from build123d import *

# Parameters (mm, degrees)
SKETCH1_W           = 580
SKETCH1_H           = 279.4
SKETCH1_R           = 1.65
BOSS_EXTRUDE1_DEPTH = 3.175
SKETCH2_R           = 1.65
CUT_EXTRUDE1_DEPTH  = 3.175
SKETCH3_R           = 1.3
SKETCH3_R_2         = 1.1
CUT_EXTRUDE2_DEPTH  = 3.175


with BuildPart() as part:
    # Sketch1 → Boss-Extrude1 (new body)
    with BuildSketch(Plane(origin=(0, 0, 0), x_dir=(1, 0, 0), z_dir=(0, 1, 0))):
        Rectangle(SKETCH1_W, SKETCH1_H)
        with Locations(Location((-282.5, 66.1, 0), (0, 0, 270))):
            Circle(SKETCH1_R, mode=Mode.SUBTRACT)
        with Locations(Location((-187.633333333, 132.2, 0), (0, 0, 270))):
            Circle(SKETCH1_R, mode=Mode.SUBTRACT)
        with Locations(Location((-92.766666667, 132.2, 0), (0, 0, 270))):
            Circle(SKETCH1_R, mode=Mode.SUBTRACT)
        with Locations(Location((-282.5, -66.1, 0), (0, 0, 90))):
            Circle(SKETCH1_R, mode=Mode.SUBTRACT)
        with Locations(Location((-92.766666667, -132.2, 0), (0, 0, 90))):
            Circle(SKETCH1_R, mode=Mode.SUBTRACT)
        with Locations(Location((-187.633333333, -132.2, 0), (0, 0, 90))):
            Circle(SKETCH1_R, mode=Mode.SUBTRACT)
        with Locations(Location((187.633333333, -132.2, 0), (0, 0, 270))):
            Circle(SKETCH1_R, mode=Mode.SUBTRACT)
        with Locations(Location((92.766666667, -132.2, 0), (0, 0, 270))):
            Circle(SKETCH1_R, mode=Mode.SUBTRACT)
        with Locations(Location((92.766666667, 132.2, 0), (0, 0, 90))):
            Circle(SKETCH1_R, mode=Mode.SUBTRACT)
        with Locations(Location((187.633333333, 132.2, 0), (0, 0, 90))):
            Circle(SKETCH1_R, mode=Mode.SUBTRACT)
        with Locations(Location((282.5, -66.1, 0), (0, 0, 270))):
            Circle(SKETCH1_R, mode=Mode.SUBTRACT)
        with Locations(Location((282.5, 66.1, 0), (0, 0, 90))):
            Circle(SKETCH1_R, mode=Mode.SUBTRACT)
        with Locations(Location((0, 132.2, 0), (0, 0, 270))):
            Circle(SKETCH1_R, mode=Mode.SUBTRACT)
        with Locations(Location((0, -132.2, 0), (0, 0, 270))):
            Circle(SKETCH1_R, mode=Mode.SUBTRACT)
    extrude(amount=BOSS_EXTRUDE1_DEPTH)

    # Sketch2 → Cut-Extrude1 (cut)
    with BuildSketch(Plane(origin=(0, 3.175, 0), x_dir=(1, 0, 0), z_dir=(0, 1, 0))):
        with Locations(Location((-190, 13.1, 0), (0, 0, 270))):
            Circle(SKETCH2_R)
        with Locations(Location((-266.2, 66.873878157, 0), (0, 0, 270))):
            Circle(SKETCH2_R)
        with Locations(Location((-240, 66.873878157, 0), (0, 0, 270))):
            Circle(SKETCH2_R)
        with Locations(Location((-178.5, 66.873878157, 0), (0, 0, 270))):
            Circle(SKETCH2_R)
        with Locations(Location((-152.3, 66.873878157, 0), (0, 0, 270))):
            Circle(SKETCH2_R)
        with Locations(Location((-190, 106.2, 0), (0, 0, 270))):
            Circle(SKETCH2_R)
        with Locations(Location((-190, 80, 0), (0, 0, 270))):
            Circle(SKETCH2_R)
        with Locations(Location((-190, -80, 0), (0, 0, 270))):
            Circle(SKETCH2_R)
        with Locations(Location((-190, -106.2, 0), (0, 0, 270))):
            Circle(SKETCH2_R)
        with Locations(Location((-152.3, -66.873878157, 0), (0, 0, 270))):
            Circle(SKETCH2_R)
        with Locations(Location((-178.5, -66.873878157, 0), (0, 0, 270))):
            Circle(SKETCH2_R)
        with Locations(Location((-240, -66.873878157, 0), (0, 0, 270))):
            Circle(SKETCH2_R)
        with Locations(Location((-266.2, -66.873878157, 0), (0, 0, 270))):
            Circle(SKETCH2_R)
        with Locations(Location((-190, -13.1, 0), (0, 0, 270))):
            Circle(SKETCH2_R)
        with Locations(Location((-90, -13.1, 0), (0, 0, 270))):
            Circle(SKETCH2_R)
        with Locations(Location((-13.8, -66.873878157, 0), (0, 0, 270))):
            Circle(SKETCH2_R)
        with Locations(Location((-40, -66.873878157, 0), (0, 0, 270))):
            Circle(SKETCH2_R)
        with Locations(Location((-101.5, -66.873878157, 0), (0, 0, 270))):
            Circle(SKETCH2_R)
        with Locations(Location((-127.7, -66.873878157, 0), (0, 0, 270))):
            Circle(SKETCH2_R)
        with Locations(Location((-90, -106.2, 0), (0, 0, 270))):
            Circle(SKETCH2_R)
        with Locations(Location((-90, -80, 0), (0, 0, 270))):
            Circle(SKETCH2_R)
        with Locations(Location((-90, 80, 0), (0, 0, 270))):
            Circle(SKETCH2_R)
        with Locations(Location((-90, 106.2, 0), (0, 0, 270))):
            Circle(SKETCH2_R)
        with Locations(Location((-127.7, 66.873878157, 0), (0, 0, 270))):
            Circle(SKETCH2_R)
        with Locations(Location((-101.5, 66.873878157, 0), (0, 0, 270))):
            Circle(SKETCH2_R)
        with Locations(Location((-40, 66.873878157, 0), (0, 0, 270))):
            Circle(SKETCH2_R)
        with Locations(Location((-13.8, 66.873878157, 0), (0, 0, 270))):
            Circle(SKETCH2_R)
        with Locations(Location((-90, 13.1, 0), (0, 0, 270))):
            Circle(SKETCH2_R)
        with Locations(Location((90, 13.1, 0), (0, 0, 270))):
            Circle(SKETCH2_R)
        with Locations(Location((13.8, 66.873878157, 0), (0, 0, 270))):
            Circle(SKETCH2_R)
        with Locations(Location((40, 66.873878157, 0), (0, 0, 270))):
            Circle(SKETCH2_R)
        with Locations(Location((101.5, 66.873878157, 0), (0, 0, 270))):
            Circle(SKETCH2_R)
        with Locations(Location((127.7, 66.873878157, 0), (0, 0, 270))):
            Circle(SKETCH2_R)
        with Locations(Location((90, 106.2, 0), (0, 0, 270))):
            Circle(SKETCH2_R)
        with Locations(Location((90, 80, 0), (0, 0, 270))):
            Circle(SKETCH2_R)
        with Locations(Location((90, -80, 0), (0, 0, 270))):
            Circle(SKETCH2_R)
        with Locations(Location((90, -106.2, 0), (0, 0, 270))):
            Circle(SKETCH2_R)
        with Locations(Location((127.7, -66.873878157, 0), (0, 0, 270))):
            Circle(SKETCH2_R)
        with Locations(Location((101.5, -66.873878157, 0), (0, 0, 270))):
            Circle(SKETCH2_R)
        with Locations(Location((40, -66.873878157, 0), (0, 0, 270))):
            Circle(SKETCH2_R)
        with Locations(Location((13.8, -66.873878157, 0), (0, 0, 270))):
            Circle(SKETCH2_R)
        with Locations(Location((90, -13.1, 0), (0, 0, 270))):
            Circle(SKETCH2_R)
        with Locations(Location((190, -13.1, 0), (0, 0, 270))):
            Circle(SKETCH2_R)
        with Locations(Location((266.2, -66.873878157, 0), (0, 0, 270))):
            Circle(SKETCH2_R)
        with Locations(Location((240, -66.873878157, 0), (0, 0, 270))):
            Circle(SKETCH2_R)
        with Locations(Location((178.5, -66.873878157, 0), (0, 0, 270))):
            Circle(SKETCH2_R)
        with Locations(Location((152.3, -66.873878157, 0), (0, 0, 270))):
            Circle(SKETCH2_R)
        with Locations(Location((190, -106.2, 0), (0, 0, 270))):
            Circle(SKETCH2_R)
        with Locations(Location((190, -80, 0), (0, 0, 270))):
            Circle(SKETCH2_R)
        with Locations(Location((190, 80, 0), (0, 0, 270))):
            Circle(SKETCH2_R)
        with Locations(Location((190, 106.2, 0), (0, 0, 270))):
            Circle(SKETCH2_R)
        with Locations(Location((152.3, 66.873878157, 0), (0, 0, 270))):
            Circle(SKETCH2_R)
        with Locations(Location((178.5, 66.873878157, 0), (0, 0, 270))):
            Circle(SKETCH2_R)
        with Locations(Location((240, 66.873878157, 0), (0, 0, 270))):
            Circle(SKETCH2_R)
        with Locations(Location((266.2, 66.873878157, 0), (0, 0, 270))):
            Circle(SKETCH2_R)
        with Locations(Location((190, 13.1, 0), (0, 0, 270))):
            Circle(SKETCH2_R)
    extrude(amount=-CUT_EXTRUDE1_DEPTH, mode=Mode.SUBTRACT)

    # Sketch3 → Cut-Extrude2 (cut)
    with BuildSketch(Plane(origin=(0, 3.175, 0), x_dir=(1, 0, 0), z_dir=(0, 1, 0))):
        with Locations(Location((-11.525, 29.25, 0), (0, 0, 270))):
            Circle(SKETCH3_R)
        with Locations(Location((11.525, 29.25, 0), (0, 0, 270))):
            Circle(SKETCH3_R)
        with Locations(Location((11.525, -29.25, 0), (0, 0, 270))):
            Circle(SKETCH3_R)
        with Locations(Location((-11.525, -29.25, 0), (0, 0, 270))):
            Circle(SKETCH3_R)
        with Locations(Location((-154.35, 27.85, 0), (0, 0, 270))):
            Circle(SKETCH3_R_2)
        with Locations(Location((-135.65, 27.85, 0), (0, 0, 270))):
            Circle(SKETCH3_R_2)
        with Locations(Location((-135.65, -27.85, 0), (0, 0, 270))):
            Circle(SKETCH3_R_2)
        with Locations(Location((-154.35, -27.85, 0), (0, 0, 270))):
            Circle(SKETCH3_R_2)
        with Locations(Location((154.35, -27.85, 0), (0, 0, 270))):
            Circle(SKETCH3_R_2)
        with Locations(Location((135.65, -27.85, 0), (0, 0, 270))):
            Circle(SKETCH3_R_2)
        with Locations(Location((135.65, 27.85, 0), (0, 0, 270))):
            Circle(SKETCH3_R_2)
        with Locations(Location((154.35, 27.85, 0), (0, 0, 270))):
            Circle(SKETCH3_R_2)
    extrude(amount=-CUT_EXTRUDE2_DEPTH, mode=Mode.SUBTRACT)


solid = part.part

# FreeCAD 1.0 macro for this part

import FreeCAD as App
import Part
import Sketcher
from FreeCAD import Vector
Q = App.Units.Quantity

doc = App.newDocument("Part")
body = doc.addObject("PartDesign::Body", "Body")

# Sketch on XZ plane
sketch1 = doc.addObject("Sketcher::SketchObject", "Sketch")
body.addObject(sketch1)
sketch1.AttachmentSupport = (doc.XZ_Plane, [""])
sketch1.MapMode = "FlatFace"
sketch1.addGeometry([
    Part.LineSegment(Vector(-290, -139.7, 0), Vector(-290, 139.7, 0)),  # 0
    Part.LineSegment(Vector(-290, 139.7, 0), Vector(290, 139.7, 0)),  # 1
    Part.LineSegment(Vector(290, 139.7, 0), Vector(290, -139.7, 0)),  # 2
    Part.LineSegment(Vector(290, -139.7, 0), Vector(-290, -139.7, 0)),  # 3
    Part.Circle(Vector(-187.633333, 132.2, 0), Vector(0, 0, 1), 1.65),  # 4
    Part.Circle(Vector(-92.766667, 132.2, 0), Vector(0, 0, 1), 1.65),  # 5
    Part.Circle(Vector(-282.5, 66.1, 0), Vector(0, 0, 1), 1.65),  # 6
    Part.Circle(Vector(0, 132.2, 0), Vector(0, 0, 1), 1.65),  # 7
    Part.Circle(Vector(92.766667, 132.2, 0), Vector(0, 0, 1), 1.65),  # 8
    Part.Circle(Vector(187.633333, 132.2, 0), Vector(0, 0, 1), 1.65),  # 9
    Part.Circle(Vector(282.5, 66.1, 0), Vector(0, 0, 1), 1.65),  # 10
    Part.Circle(Vector(-282.5, -66.1, 0), Vector(0, 0, 1), 1.65),  # 11
    Part.Circle(Vector(-187.633333, -132.2, 0), Vector(0, 0, 1), 1.65),  # 12
    Part.Circle(Vector(-92.766667, -132.2, 0), Vector(0, 0, 1), 1.65),  # 13
    Part.Circle(Vector(282.5, -66.1, 0), Vector(0, 0, 1), 1.65),  # 14
    Part.Circle(Vector(0, -132.2, 0), Vector(0, 0, 1), 1.65),  # 15
    Part.Circle(Vector(92.766667, -132.2, 0), Vector(0, 0, 1), 1.65),  # 16
    Part.Circle(Vector(187.633333, -132.2, 0), Vector(0, 0, 1), 1.65),  # 17
], False)
sketch1.addConstraint([
    Sketcher.Constraint("Coincident", 0, 2, 1, 1),
    Sketcher.Constraint("Coincident", 1, 2, 2, 1),
    Sketcher.Constraint("Coincident", 2, 2, 3, 1),
    Sketcher.Constraint("Coincident", 3, 2, 0, 1),
    Sketcher.Constraint("Vertical", 0),
    Sketcher.Constraint("Horizontal", 1),
    Sketcher.Constraint("Vertical", 2),
    Sketcher.Constraint("Horizontal", 3),
    Sketcher.Constraint("Equal", 4, 5),
    Sketcher.Constraint("Equal", 5, 6),
    Sketcher.Constraint("Equal", 6, 7),
    Sketcher.Constraint("Equal", 7, 8),
    Sketcher.Constraint("Equal", 8, 9),
    Sketcher.Constraint("Equal", 9, 10),
    Sketcher.Constraint("Equal", 10, 11),
    Sketcher.Constraint("Equal", 11, 12),
    Sketcher.Constraint("Equal", 12, 13),
    Sketcher.Constraint("Equal", 13, 14),
    Sketcher.Constraint("Equal", 14, 15),
    Sketcher.Constraint("Equal", 15, 16),
    Sketcher.Constraint("Equal", 16, 17),
    Sketcher.Constraint("Symmetric", 10, 3, 11, 3, -1, 1),
    Sketcher.Constraint("Symmetric", 9, 3, 12, 3, -1, 1),
    Sketcher.Constraint("Symmetric", 8, 3, 13, 3, -1, 1),
    Sketcher.Constraint("Symmetric", 6, 3, 14, 3, -1, 1),
    Sketcher.Constraint("Symmetric", 7, 3, 15, 3, -1, 1),
    Sketcher.Constraint("Symmetric", 5, 3, 16, 3, -1, 1),
    Sketcher.Constraint("Symmetric", 4, 3, 17, 3, -1, 1),
    Sketcher.Constraint("Symmetric", 0, 2, 2, 2, -1, 1),
    Sketcher.Constraint("Symmetric", 5, 3, 8, 3, -2),
    Sketcher.Constraint("Symmetric", 4, 3, 9, 3, -2),
    Sketcher.Constraint("Symmetric", 6, 3, 10, 3, -2),
    Sketcher.Constraint("PointOnObject", 7, 3, -2),
    Sketcher.Constraint("Horizontal", 4, 3, 5, 3),
    Sketcher.Constraint("Horizontal", 5, 3, 7, 3),
    Sketcher.Constraint("Diameter", 4, Q("3.3 mm")),
    Sketcher.Constraint("DistanceX", 1, 1, 1, 2, Q("580 mm")),
    Sketcher.Constraint("DistanceY", 0, 1, 0, 2, Q("279.4 mm")),
    Sketcher.Constraint("DistanceY", -1, 1, 4, 3, Q("132.2 mm")),
    Sketcher.Constraint("DistanceX", 6, 3, -1, 1, Q("282.5 mm")),
    Sketcher.Constraint("DistanceY", -1, 1, 6, 3, Q("66.1 mm")),
    Sketcher.Constraint("DistanceX", 4, 3, 8, 3, Q("280.4 mm")),
    Sketcher.Constraint("DistanceX", 4, 3, -1, 1, Q("187.633333 mm")),
])
pad1 = doc.addObject("PartDesign::Pad", "Pad")
body.addObject(pad1)
pad1.Profile = sketch1
pad1.Length = 3.175
pad1.Reversed = True

# Sketch on XZ plane
sketch2 = doc.addObject("Sketcher::SketchObject", "Sketch001")
body.addObject(sketch2)
sketch2.AttachmentSupport = (doc.XZ_Plane, [""])
sketch2.MapMode = "FlatFace"
sketch2.AttachmentOffset = App.Placement(Vector(0, 0, -3.175), App.Rotation())
sketch2.addGeometry([
    Part.Circle(Vector(-190, -13.1, 0), Vector(0, 0, 1), 1.65),  # 0
    Part.Circle(Vector(-266.2, -66.873878, 0), Vector(0, 0, 1), 1.65),  # 1
    Part.Circle(Vector(-240, -66.873878, 0), Vector(0, 0, 1), 1.65),  # 2
    Part.Circle(Vector(-178.5, -66.873878, 0), Vector(0, 0, 1), 1.65),  # 3
    Part.Circle(Vector(-152.3, -66.873878, 0), Vector(0, 0, 1), 1.65),  # 4
    Part.Circle(Vector(-190, -106.2, 0), Vector(0, 0, 1), 1.65),  # 5
    Part.Circle(Vector(-190, -80, 0), Vector(0, 0, 1), 1.65),  # 6
    Part.Circle(Vector(-190, 80, 0), Vector(0, 0, 1), 1.65),  # 7
    Part.Circle(Vector(-190, 106.2, 0), Vector(0, 0, 1), 1.65),  # 8
    Part.Circle(Vector(-152.3, 66.873878, 0), Vector(0, 0, 1), 1.65),  # 9
    Part.Circle(Vector(-178.5, 66.873878, 0), Vector(0, 0, 1), 1.65),  # 10
    Part.Circle(Vector(-240, 66.873878, 0), Vector(0, 0, 1), 1.65),  # 11
    Part.Circle(Vector(-266.2, 66.873878, 0), Vector(0, 0, 1), 1.65),  # 12
    Part.Circle(Vector(-190, 13.1, 0), Vector(0, 0, 1), 1.65),  # 13
    Part.Circle(Vector(-90, 13.1, 0), Vector(0, 0, 1), 1.65),  # 14
    Part.Circle(Vector(-13.8, 66.873878, 0), Vector(0, 0, 1), 1.65),  # 15
    Part.Circle(Vector(-40, 66.873878, 0), Vector(0, 0, 1), 1.65),  # 16
    Part.Circle(Vector(-101.5, 66.873878, 0), Vector(0, 0, 1), 1.65),  # 17
    Part.Circle(Vector(-127.7, 66.873878, 0), Vector(0, 0, 1), 1.65),  # 18
    Part.Circle(Vector(-90, 106.2, 0), Vector(0, 0, 1), 1.65),  # 19
    Part.Circle(Vector(-90, 80, 0), Vector(0, 0, 1), 1.65),  # 20
    Part.Circle(Vector(-90, -80, 0), Vector(0, 0, 1), 1.65),  # 21
    Part.Circle(Vector(-90, -106.2, 0), Vector(0, 0, 1), 1.65),  # 22
    Part.Circle(Vector(-127.7, -66.873878, 0), Vector(0, 0, 1), 1.65),  # 23
    Part.Circle(Vector(-101.5, -66.873878, 0), Vector(0, 0, 1), 1.65),  # 24
    Part.Circle(Vector(-40, -66.873878, 0), Vector(0, 0, 1), 1.65),  # 25
    Part.Circle(Vector(-13.8, -66.873878, 0), Vector(0, 0, 1), 1.65),  # 26
    Part.Circle(Vector(-90, -13.1, 0), Vector(0, 0, 1), 1.65),  # 27
    Part.Circle(Vector(90, -13.1, 0), Vector(0, 0, 1), 1.65),  # 28
    Part.Circle(Vector(13.8, -66.873878, 0), Vector(0, 0, 1), 1.65),  # 29
    Part.Circle(Vector(40, -66.873878, 0), Vector(0, 0, 1), 1.65),  # 30
    Part.Circle(Vector(101.5, -66.873878, 0), Vector(0, 0, 1), 1.65),  # 31
    Part.Circle(Vector(127.7, -66.873878, 0), Vector(0, 0, 1), 1.65),  # 32
    Part.Circle(Vector(90, -106.2, 0), Vector(0, 0, 1), 1.65),  # 33
    Part.Circle(Vector(90, -80, 0), Vector(0, 0, 1), 1.65),  # 34
    Part.Circle(Vector(90, 80, 0), Vector(0, 0, 1), 1.65),  # 35
    Part.Circle(Vector(90, 106.2, 0), Vector(0, 0, 1), 1.65),  # 36
    Part.Circle(Vector(127.7, 66.873878, 0), Vector(0, 0, 1), 1.65),  # 37
    Part.Circle(Vector(101.5, 66.873878, 0), Vector(0, 0, 1), 1.65),  # 38
    Part.Circle(Vector(40, 66.873878, 0), Vector(0, 0, 1), 1.65),  # 39
    Part.Circle(Vector(13.8, 66.873878, 0), Vector(0, 0, 1), 1.65),  # 40
    Part.Circle(Vector(90, 13.1, 0), Vector(0, 0, 1), 1.65),  # 41
    Part.Circle(Vector(190, 13.1, 0), Vector(0, 0, 1), 1.65),  # 42
    Part.Circle(Vector(266.2, 66.873878, 0), Vector(0, 0, 1), 1.65),  # 43
    Part.Circle(Vector(240, 66.873878, 0), Vector(0, 0, 1), 1.65),  # 44
    Part.Circle(Vector(178.5, 66.873878, 0), Vector(0, 0, 1), 1.65),  # 45
    Part.Circle(Vector(152.3, 66.873878, 0), Vector(0, 0, 1), 1.65),  # 46
    Part.Circle(Vector(190, 106.2, 0), Vector(0, 0, 1), 1.65),  # 47
    Part.Circle(Vector(190, 80, 0), Vector(0, 0, 1), 1.65),  # 48
    Part.Circle(Vector(190, -80, 0), Vector(0, 0, 1), 1.65),  # 49
    Part.Circle(Vector(190, -106.2, 0), Vector(0, 0, 1), 1.65),  # 50
    Part.Circle(Vector(152.3, -66.873878, 0), Vector(0, 0, 1), 1.65),  # 51
    Part.Circle(Vector(178.5, -66.873878, 0), Vector(0, 0, 1), 1.65),  # 52
    Part.Circle(Vector(240, -66.873878, 0), Vector(0, 0, 1), 1.65),  # 53
    Part.Circle(Vector(266.2, -66.873878, 0), Vector(0, 0, 1), 1.65),  # 54
    Part.Circle(Vector(190, -13.1, 0), Vector(0, 0, 1), 1.65),  # 55
], False)
sketch2.addConstraint([
    Sketcher.Constraint("Equal", 0, 1),
    Sketcher.Constraint("Equal", 1, 2),
    Sketcher.Constraint("Equal", 2, 3),
    Sketcher.Constraint("Equal", 3, 4),
    Sketcher.Constraint("Equal", 4, 5),
    Sketcher.Constraint("Equal", 5, 6),
    Sketcher.Constraint("Equal", 6, 7),
    Sketcher.Constraint("Equal", 7, 8),
    Sketcher.Constraint("Equal", 8, 9),
    Sketcher.Constraint("Equal", 9, 10),
    Sketcher.Constraint("Equal", 10, 11),
    Sketcher.Constraint("Equal", 11, 12),
    Sketcher.Constraint("Equal", 12, 13),
    Sketcher.Constraint("Equal", 13, 14),
    Sketcher.Constraint("Equal", 14, 15),
    Sketcher.Constraint("Equal", 15, 16),
    Sketcher.Constraint("Equal", 16, 17),
    Sketcher.Constraint("Equal", 17, 18),
    Sketcher.Constraint("Equal", 18, 19),
    Sketcher.Constraint("Equal", 19, 20),
    Sketcher.Constraint("Equal", 20, 21),
    Sketcher.Constraint("Equal", 21, 22),
    Sketcher.Constraint("Equal", 22, 23),
    Sketcher.Constraint("Equal", 23, 24),
    Sketcher.Constraint("Equal", 24, 25),
    Sketcher.Constraint("Equal", 25, 26),
    Sketcher.Constraint("Equal", 26, 27),
    Sketcher.Constraint("Equal", 27, 28),
    Sketcher.Constraint("Equal", 28, 29),
    Sketcher.Constraint("Equal", 29, 30),
    Sketcher.Constraint("Equal", 30, 31),
    Sketcher.Constraint("Equal", 31, 32),
    Sketcher.Constraint("Equal", 32, 33),
    Sketcher.Constraint("Equal", 33, 34),
    Sketcher.Constraint("Equal", 34, 35),
    Sketcher.Constraint("Equal", 35, 36),
    Sketcher.Constraint("Equal", 36, 37),
    Sketcher.Constraint("Equal", 37, 38),
    Sketcher.Constraint("Equal", 38, 39),
    Sketcher.Constraint("Equal", 39, 40),
    Sketcher.Constraint("Equal", 40, 41),
    Sketcher.Constraint("Equal", 41, 42),
    Sketcher.Constraint("Equal", 42, 43),
    Sketcher.Constraint("Equal", 43, 44),
    Sketcher.Constraint("Equal", 44, 45),
    Sketcher.Constraint("Equal", 45, 46),
    Sketcher.Constraint("Equal", 46, 47),
    Sketcher.Constraint("Equal", 47, 48),
    Sketcher.Constraint("Equal", 48, 49),
    Sketcher.Constraint("Equal", 49, 50),
    Sketcher.Constraint("Equal", 50, 51),
    Sketcher.Constraint("Equal", 51, 52),
    Sketcher.Constraint("Equal", 52, 53),
    Sketcher.Constraint("Equal", 53, 54),
    Sketcher.Constraint("Equal", 54, 55),
    Sketcher.Constraint("Symmetric", 14, 3, 28, 3, -1, 1),
    Sketcher.Constraint("Symmetric", 15, 3, 29, 3, -1, 1),
    Sketcher.Constraint("Symmetric", 16, 3, 30, 3, -1, 1),
    Sketcher.Constraint("Symmetric", 17, 3, 31, 3, -1, 1),
    Sketcher.Constraint("Symmetric", 18, 3, 32, 3, -1, 1),
    Sketcher.Constraint("Symmetric", 19, 3, 33, 3, -1, 1),
    Sketcher.Constraint("Symmetric", 20, 3, 34, 3, -1, 1),
    Sketcher.Constraint("Symmetric", 21, 3, 35, 3, -1, 1),
    Sketcher.Constraint("Symmetric", 22, 3, 36, 3, -1, 1),
    Sketcher.Constraint("Symmetric", 23, 3, 37, 3, -1, 1),
    Sketcher.Constraint("Symmetric", 24, 3, 38, 3, -1, 1),
    Sketcher.Constraint("Symmetric", 25, 3, 39, 3, -1, 1),
    Sketcher.Constraint("Symmetric", 26, 3, 40, 3, -1, 1),
    Sketcher.Constraint("Symmetric", 27, 3, 41, 3, -1, 1),
    Sketcher.Constraint("Symmetric", 0, 3, 42, 3, -1, 1),
    Sketcher.Constraint("Symmetric", 1, 3, 43, 3, -1, 1),
    Sketcher.Constraint("Symmetric", 2, 3, 44, 3, -1, 1),
    Sketcher.Constraint("Symmetric", 3, 3, 45, 3, -1, 1),
    Sketcher.Constraint("Symmetric", 4, 3, 46, 3, -1, 1),
    Sketcher.Constraint("Symmetric", 5, 3, 47, 3, -1, 1),
    Sketcher.Constraint("Symmetric", 6, 3, 48, 3, -1, 1),
    Sketcher.Constraint("Symmetric", 7, 3, 49, 3, -1, 1),
    Sketcher.Constraint("Symmetric", 8, 3, 50, 3, -1, 1),
    Sketcher.Constraint("Symmetric", 9, 3, 51, 3, -1, 1),
    Sketcher.Constraint("Symmetric", 10, 3, 52, 3, -1, 1),
    Sketcher.Constraint("Symmetric", 11, 3, 53, 3, -1, 1),
    Sketcher.Constraint("Symmetric", 12, 3, 54, 3, -1, 1),
    Sketcher.Constraint("Symmetric", 13, 3, 55, 3, -1, 1),
    Sketcher.Constraint("Symmetric", 27, 3, 28, 3, -2),
    Sketcher.Constraint("Symmetric", 26, 3, 29, 3, -2),
    Sketcher.Constraint("Symmetric", 25, 3, 30, 3, -2),
    Sketcher.Constraint("Symmetric", 24, 3, 31, 3, -2),
    Sketcher.Constraint("Symmetric", 23, 3, 32, 3, -2),
    Sketcher.Constraint("Symmetric", 22, 3, 33, 3, -2),
    Sketcher.Constraint("Symmetric", 21, 3, 34, 3, -2),
    Sketcher.Constraint("Symmetric", 13, 3, 42, 3, -2),
    Sketcher.Constraint("Symmetric", 12, 3, 43, 3, -2),
    Sketcher.Constraint("Symmetric", 11, 3, 44, 3, -2),
    Sketcher.Constraint("Symmetric", 10, 3, 45, 3, -2),
    Sketcher.Constraint("Symmetric", 9, 3, 46, 3, -2),
    Sketcher.Constraint("Symmetric", 8, 3, 47, 3, -2),
    Sketcher.Constraint("Symmetric", 7, 3, 48, 3, -2),
    Sketcher.Constraint("Horizontal", 1, 3, 2, 3),
    Sketcher.Constraint("Horizontal", 2, 3, 3, 3),
    Sketcher.Constraint("Horizontal", 3, 3, 4, 3),
    Sketcher.Constraint("Horizontal", 13, 3, 14, 3),
    Sketcher.Constraint("Horizontal", 12, 3, 15, 3),
    Sketcher.Constraint("Horizontal", 15, 3, 16, 3),
    Sketcher.Constraint("Horizontal", 16, 3, 17, 3),
    Sketcher.Constraint("Horizontal", 17, 3, 18, 3),
    Sketcher.Constraint("Horizontal", 8, 3, 19, 3),
    Sketcher.Constraint("Horizontal", 7, 3, 20, 3),
    Sketcher.Constraint("Vertical", 0, 3, 5, 3),
    Sketcher.Constraint("Vertical", 5, 3, 6, 3),
    Sketcher.Constraint("Vertical", 14, 3, 19, 3),
    Sketcher.Constraint("Vertical", 19, 3, 20, 3),
    Sketcher.Constraint("Diameter", 0, Q("3.3 mm")),
    Sketcher.Constraint("DistanceX", 0, 3, -1, 1, Q("190 mm")),
    Sketcher.Constraint("DistanceX", 2, 3, -1, 1, Q("240 mm")),
    Sketcher.Constraint("DistanceY", 6, 3, -1, 1, Q("80 mm")),
    Sketcher.Constraint("DistanceX", 14, 3, -1, 1, Q("90 mm")),
    Sketcher.Constraint("DistanceX", 16, 3, -1, 1, Q("40 mm")),
    Sketcher.Constraint("DistanceX", 10, 3, 17, 3, Q("77 mm")),
    Sketcher.Constraint("DistanceY", 0, 3, -1, 1, Q("13.1 mm")),
    Sketcher.Constraint("DistanceX", 1, 3, -1, 1, Q("266.2 mm")),
    Sketcher.Constraint("DistanceX", 3, 3, -1, 1, Q("178.5 mm")),
    Sketcher.Constraint("DistanceX", 4, 3, -1, 1, Q("152.3 mm")),
    Sketcher.Constraint("DistanceY", 5, 3, -1, 1, Q("106.2 mm")),
    Sketcher.Constraint("DistanceX", 15, 3, -1, 1, Q("13.8 mm")),
    Sketcher.Constraint("DistanceX", 18, 3, -1, 1, Q("127.7 mm")),
    Sketcher.Constraint("DistanceY", 1, 3, -1, 1, Q("66.873878 mm")),
])
pocket1 = doc.addObject("PartDesign::Pocket", "Pocket")
body.addObject(pocket1)
pocket1.Profile = sketch2
pocket1.Length = 3.175
pocket1.Reversed = True

# Sketch on XZ plane
sketch3 = doc.addObject("Sketcher::SketchObject", "Sketch002")
body.addObject(sketch3)
sketch3.AttachmentSupport = (doc.XZ_Plane, [""])
sketch3.MapMode = "FlatFace"
sketch3.AttachmentOffset = App.Placement(Vector(0, 0, -3.175), App.Rotation())
sketch3.addGeometry([
    Part.Circle(Vector(-11.525, -29.25, 0), Vector(0, 0, 1), 1.3),  # 0
    Part.Circle(Vector(11.525, -29.25, 0), Vector(0, 0, 1), 1.3),  # 1
    Part.Circle(Vector(11.525, 29.25, 0), Vector(0, 0, 1), 1.3),  # 2
    Part.Circle(Vector(-11.525, 29.25, 0), Vector(0, 0, 1), 1.3),  # 3
    Part.Circle(Vector(-154.35, -27.85, 0), Vector(0, 0, 1), 1.1),  # 4
    Part.Circle(Vector(-135.65, -27.85, 0), Vector(0, 0, 1), 1.1),  # 5
    Part.Circle(Vector(-135.65, 27.85, 0), Vector(0, 0, 1), 1.1),  # 6
    Part.Circle(Vector(-154.35, 27.85, 0), Vector(0, 0, 1), 1.1),  # 7
    Part.Circle(Vector(154.35, 27.85, 0), Vector(0, 0, 1), 1.1),  # 8
    Part.Circle(Vector(135.65, 27.85, 0), Vector(0, 0, 1), 1.1),  # 9
    Part.Circle(Vector(135.65, -27.85, 0), Vector(0, 0, 1), 1.1),  # 10
    Part.Circle(Vector(154.35, -27.85, 0), Vector(0, 0, 1), 1.1),  # 11
], False)
sketch3.addConstraint([
    Sketcher.Constraint("Equal", 0, 1),
    Sketcher.Constraint("Equal", 1, 2),
    Sketcher.Constraint("Equal", 2, 3),
    Sketcher.Constraint("Equal", 4, 5),
    Sketcher.Constraint("Equal", 5, 6),
    Sketcher.Constraint("Equal", 6, 7),
    Sketcher.Constraint("Equal", 7, 8),
    Sketcher.Constraint("Equal", 8, 9),
    Sketcher.Constraint("Equal", 9, 10),
    Sketcher.Constraint("Equal", 10, 11),
    Sketcher.Constraint("Symmetric", 0, 3, 2, 3, -1, 1),
    Sketcher.Constraint("Symmetric", 1, 3, 3, 3, -1, 1),
    Sketcher.Constraint("Symmetric", 4, 3, 8, 3, -1, 1),
    Sketcher.Constraint("Symmetric", 5, 3, 9, 3, -1, 1),
    Sketcher.Constraint("Symmetric", 6, 3, 10, 3, -1, 1),
    Sketcher.Constraint("Symmetric", 7, 3, 11, 3, -1, 1),
    Sketcher.Constraint("Symmetric", 0, 3, 1, 3, -2),
    Sketcher.Constraint("Symmetric", 7, 3, 8, 3, -2),
    Sketcher.Constraint("Symmetric", 6, 3, 9, 3, -2),
    Sketcher.Constraint("Horizontal", 4, 3, 5, 3),
    Sketcher.Constraint("Diameter", 0, Q("2.6 mm")),
    Sketcher.Constraint("Diameter", 4, Q("2.2 mm")),
    Sketcher.Constraint("DistanceX", 6, 3, 8, 3, Q("290 mm")),
    Sketcher.Constraint("DistanceY", 1, 3, 2, 3, Q("58.5 mm")),
    Sketcher.Constraint("DistanceY", 0, 3, 4, 3, Q("1.4 mm")),
    Sketcher.Constraint("DistanceX", 4, 3, 5, 3, Q("18.7 mm")),
    Sketcher.Constraint("DistanceX", 0, 3, 1, 3, Q("23.05 mm")),
])
pocket2 = doc.addObject("PartDesign::Pocket", "Pocket001")
body.addObject(pocket2)
pocket2.Profile = sketch3
pocket2.Length = 3.175
pocket2.Reversed = True

doc.recompute()
